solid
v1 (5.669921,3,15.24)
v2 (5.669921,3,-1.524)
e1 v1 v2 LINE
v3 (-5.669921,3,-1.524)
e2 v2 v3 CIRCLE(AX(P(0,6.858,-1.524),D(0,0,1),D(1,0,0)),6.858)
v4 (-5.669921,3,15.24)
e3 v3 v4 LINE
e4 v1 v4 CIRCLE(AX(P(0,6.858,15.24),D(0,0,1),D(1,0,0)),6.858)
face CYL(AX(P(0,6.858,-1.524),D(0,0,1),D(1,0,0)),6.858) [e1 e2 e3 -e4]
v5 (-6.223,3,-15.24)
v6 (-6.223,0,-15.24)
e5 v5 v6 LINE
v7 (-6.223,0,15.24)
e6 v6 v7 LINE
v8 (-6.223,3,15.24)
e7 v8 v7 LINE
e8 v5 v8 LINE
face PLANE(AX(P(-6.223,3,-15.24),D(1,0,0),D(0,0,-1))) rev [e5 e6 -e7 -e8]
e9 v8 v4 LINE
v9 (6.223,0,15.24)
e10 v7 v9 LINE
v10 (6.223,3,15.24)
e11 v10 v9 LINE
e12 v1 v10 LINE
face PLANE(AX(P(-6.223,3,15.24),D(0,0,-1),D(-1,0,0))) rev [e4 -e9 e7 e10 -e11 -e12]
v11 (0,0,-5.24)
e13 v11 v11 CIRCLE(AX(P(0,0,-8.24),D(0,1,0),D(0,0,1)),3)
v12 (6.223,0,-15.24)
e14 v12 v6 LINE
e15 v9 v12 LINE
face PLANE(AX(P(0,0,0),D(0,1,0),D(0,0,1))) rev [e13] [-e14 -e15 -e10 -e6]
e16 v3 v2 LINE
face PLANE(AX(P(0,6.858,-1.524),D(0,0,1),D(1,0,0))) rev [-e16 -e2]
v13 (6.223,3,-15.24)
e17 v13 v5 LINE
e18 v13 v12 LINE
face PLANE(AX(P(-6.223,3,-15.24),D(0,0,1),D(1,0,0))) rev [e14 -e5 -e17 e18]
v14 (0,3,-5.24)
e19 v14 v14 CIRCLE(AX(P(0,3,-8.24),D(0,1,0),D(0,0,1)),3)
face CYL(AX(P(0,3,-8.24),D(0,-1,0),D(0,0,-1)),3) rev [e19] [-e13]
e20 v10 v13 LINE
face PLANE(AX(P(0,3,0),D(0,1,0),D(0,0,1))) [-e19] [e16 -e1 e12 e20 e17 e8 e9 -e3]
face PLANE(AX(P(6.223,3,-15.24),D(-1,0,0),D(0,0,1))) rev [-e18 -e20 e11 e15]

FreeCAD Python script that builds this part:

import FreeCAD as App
import Part
import Sketcher
Q = App.Units.Quantity

doc = App.newDocument("Part")
body = doc.addObject("PartDesign::Body", "Body")

sketch1 = body.newObject("Sketcher::SketchObject", "Sketch")
sketch1.AttachmentSupport = (doc.getObject("XZ_Plane"), [""])
sketch1.MapMode = "FlatFace"
sketch1.addGeometry([
    Part.LineSegment(App.Vector(-6.2, -15.2, 0), App.Vector(-6.2, 15.2, 0)),
    Part.LineSegment(App.Vector(-6.2, 15.2, 0), App.Vector(6.2, 15.2, 0)),
    Part.LineSegment(App.Vector(6.2, 15.2, 0), App.Vector(6.2, -15.2, 0)),
    Part.LineSegment(App.Vector(6.2, -15.2, 0), App.Vector(-6.2, -15.2, 0)),
    Part.Circle(App.Vector(0, -8.2, 0), App.Vector(0, 0, 1), 3),
], False)
sketch1.addConstraint([
    Sketcher.Constraint("Coincident", 0, 2, 1, 1),
    Sketcher.Constraint("Coincident", 1, 2, 2, 1),
    Sketcher.Constraint("Coincident", 2, 2, 3, 1),
    Sketcher.Constraint("Coincident", 3, 2, 0, 1),
    Sketcher.Constraint("Vertical", 0),
    Sketcher.Constraint("Horizontal", 1),
    Sketcher.Constraint("Vertical", 2),
    Sketcher.Constraint("Horizontal", 3),
    Sketcher.Constraint("Symmetric", 0, 2, 2, 2, -1, 1),
    Sketcher.Constraint("PointOnObject", 4, 3, -2),
    Sketcher.Constraint("DistanceY", 0, 1, 0, 2, Q("1.2 in")),
    Sketcher.Constraint("DistanceX", 1, 1, 1, 2, Q("0.49 in")),
    Sketcher.Constraint("Diameter", 4, Q("6 mm")),
    Sketcher.Constraint("DistanceY", 4, 3, -1, 1, Q("8.24 mm")),
])
pad1 = body.newObject("PartDesign::Pad", "Pad")
pad1.Profile = sketch1
pad1.Length = 3
pad1.Reversed = True

sketch2 = body.newObject("Sketcher::SketchObject", "Sketch001")
sketch2.AttachmentSupport = (doc.getObject("XY_Plane"), [""])
sketch2.MapMode = "FlatFace"
sketch2.AttachmentOffset = App.Placement(App.Vector(0, 0, 0.6 * 25.4), App.Rotation())
sketch2.addGeometry(Part.Circle(App.Vector(0, 7, 0), App.Vector(0, 0, 1), 7), False)
sketch2.addConstraint([
    Sketcher.Constraint("PointOnObject", 0, 3, -2),
    Sketcher.Constraint("Diameter", 0, Q("0.54 in")),
    Sketcher.Constraint("DistanceY", -1, 1, 0, 3, Q("0.27 in")),
])
pad2 = body.newObject("PartDesign::Pad", "Pad001")
pad2.Profile = sketch2
pad2.Length = Q("0.66 in")
pad2.Reversed = True

doc.recompute()
